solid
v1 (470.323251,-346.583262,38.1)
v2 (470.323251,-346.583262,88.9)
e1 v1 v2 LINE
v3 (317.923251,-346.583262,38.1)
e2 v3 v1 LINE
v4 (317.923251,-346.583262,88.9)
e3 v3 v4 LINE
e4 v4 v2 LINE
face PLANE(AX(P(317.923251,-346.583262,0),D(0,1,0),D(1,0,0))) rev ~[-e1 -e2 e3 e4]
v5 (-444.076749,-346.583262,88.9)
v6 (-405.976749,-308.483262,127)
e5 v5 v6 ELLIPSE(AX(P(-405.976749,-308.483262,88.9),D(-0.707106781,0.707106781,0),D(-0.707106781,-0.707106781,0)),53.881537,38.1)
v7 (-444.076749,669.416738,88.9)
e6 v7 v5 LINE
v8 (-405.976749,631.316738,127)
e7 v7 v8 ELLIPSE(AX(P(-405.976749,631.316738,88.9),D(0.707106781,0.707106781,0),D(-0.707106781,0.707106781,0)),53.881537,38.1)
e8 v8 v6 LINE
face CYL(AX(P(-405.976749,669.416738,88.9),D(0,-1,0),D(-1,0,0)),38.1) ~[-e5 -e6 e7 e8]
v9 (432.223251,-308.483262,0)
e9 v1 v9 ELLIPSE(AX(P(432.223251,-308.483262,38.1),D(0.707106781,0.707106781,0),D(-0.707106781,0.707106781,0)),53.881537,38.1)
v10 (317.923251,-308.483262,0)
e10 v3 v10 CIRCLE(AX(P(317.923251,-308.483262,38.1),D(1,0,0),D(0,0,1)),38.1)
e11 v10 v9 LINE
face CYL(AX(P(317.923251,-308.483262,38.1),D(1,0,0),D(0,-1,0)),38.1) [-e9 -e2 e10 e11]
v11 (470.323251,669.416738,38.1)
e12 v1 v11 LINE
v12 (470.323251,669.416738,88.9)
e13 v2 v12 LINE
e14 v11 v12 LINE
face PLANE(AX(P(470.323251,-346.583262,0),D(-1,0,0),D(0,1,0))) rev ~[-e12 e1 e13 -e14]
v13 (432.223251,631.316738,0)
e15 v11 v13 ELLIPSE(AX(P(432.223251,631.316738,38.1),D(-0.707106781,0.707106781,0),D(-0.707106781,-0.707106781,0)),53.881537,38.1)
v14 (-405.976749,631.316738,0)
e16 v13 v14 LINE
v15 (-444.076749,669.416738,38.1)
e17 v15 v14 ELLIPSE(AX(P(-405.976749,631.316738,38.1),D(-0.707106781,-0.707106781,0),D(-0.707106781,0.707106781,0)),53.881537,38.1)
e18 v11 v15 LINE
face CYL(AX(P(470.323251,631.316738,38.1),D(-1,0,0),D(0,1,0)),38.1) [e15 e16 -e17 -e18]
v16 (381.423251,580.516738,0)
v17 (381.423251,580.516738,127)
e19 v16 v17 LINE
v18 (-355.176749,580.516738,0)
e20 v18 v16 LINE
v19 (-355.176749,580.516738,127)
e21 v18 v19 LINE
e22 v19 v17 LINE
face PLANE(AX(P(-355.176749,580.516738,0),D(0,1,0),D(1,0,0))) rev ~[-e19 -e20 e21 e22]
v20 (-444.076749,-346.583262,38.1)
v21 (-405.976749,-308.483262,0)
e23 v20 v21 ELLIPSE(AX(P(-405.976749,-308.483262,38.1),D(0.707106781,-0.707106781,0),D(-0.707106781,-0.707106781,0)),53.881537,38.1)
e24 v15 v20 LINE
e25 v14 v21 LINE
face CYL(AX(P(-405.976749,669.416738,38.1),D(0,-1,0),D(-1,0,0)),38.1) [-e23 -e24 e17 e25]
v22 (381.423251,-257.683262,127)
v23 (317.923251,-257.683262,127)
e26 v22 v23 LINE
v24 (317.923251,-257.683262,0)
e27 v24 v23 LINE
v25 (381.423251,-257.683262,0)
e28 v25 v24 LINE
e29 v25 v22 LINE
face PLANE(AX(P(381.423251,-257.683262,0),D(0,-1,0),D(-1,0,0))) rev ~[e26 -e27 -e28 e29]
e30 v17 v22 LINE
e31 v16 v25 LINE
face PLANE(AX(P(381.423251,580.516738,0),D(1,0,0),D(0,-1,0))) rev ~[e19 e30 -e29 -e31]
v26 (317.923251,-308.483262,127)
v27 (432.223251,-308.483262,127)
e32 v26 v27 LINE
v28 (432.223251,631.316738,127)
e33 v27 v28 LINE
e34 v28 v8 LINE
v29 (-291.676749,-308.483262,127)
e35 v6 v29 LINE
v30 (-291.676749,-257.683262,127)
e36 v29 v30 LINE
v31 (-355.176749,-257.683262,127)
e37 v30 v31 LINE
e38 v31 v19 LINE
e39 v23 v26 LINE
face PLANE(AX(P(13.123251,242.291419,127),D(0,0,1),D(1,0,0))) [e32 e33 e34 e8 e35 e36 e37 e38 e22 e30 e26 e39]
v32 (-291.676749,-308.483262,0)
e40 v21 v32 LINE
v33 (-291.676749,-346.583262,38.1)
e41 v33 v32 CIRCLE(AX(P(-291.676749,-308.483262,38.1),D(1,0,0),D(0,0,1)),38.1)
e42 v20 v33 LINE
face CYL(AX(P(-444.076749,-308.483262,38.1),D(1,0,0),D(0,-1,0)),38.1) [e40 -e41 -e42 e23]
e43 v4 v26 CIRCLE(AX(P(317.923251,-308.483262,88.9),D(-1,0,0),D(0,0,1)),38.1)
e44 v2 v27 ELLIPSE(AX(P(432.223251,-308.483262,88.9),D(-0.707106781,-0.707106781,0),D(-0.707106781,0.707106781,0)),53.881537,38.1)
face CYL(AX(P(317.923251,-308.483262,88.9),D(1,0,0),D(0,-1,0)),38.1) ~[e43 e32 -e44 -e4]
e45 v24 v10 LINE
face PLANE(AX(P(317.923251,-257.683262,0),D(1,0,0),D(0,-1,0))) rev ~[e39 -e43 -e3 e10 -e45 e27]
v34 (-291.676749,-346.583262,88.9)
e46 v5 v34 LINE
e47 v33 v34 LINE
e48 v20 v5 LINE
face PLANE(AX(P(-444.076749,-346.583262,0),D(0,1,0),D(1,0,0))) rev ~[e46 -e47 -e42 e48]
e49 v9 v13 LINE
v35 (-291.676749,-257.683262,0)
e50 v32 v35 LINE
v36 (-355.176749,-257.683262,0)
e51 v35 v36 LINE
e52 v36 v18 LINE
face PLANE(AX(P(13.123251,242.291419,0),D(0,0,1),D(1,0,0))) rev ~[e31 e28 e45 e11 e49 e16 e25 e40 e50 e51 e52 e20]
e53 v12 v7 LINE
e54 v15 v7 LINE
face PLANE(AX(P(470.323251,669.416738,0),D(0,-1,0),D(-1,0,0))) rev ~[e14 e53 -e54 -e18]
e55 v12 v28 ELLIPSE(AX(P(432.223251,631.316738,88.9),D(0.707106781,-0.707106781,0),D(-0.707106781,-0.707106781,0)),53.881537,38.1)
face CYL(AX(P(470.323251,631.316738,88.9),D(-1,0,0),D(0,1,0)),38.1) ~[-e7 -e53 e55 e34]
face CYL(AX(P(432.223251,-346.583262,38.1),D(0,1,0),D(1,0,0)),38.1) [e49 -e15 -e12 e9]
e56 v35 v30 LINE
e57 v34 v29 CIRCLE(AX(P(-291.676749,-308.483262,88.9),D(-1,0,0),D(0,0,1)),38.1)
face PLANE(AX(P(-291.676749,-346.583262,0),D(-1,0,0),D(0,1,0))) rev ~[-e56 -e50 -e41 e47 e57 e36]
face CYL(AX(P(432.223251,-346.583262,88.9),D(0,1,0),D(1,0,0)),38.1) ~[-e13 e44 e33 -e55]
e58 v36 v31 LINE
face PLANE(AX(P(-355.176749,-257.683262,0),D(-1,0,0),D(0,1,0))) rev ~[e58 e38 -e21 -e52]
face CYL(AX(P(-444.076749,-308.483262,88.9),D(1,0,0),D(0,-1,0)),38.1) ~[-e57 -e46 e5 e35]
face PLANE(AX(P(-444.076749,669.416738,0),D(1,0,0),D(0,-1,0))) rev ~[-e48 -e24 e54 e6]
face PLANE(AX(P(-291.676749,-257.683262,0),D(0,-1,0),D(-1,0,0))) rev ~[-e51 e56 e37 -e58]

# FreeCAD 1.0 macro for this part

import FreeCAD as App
import Part
import Sketcher
from FreeCAD import Vector
Q = App.Units.Quantity


def edges_at(feature, points):
    """Names of the edges that pass closest to the given points."""
    edges = feature.Shape.Edges
    near = lambda p: min(range(len(edges)), key=lambda i: edges[i].distToShape(Part.Vertex(*p))[0])
    return sorted({f"Edge{near(p) + 1}" for p in points})

doc = App.newDocument("Part")
params = doc.addObject("Spreadsheet::Sheet", "Params")
for row, (alias, value) in enumerate([
    ("sketch1_width", "36 in"),
    ("sketch1_width2", "6 in"),
    ("sketch1_width3", "29 in"),
    ("sketch1_height", "40 in"),
    ("sketch1_height2", "33 in"),
    ("pad1_length", "5 in"),
    ("fillet_radius", "1.5 in"),
], start=1):
    params.set(f"A{row}", alias)
    params.set(f"B{row}", "=" + value)
    params.setAlias(f"B{row}", alias)

body = doc.addObject("PartDesign::Body", "Body")

# Sketch on XY plane
sketch1 = body.newObject("Sketcher::SketchObject", "Sketch")
sketch1.AttachmentSupport = (doc.getObject("XY_Plane"), [""])
sketch1.MapMode = "FlatFace"
sketch1.addGeometry(Part.LineSegment(Vector(470.323251, 669.416738, 0), Vector(-444.076749, 669.416738, 0)), False)
sketch1.addGeometry(Part.LineSegment(Vector(-444.076749, 669.416738, 0), Vector(-444.076749, -346.583262, 0)), False)
sketch1.addGeometry(Part.LineSegment(Vector(-444.076749, -346.583262, 0), Vector(-291.676749, -346.583262, 0)), False)
sketch1.addGeometry(Part.LineSegment(Vector(-291.676749, -346.583262, 0), Vector(-291.676749, -257.683262, 0)), False)
sketch1.addGeometry(Part.LineSegment(Vector(-291.676749, -257.683262, 0), Vector(-355.176749, -257.683262, 0)), False)
sketch1.addGeometry(Part.LineSegment(Vector(-355.176749, -257.683262, 0), Vector(-355.176749, 580.516738, 0)), False)
sketch1.addGeometry(Part.LineSegment(Vector(-355.176749, 580.516738, 0), Vector(381.423251, 580.516738, 0)), False)
sketch1.addGeometry(Part.LineSegment(Vector(381.423251, 580.516738, 0), Vector(381.423251, -257.683262, 0)), False)
sketch1.addGeometry(Part.LineSegment(Vector(381.423251, -257.683262, 0), Vector(317.923251, -257.683262, 0)), False)
sketch1.addGeometry(Part.LineSegment(Vector(317.923251, -257.683262, 0), Vector(317.923251, -346.583262, 0)), False)
sketch1.addGeometry(Part.LineSegment(Vector(317.923251, -346.583262, 0), Vector(470.323251, -346.583262, 0)), False)
sketch1.addGeometry(Part.LineSegment(Vector(470.323251, -346.583262, 0), Vector(470.323251, 669.416738, 0)), False)
sketch1.addConstraint(Sketcher.Constraint("Coincident", 0, 2, 1, 1))
sketch1.addConstraint(Sketcher.Constraint("Coincident", 1, 2, 2, 1))
sketch1.addConstraint(Sketcher.Constraint("Coincident", 2, 2, 3, 1))
sketch1.addConstraint(Sketcher.Constraint("Coincident", 3, 2, 4, 1))
sketch1.addConstraint(Sketcher.Constraint("Coincident", 4, 2, 5, 1))
sketch1.addConstraint(Sketcher.Constraint("Coincident", 5, 2, 6, 1))
sketch1.addConstraint(Sketcher.Constraint("Coincident", 6, 2, 7, 1))
sketch1.addConstraint(Sketcher.Constraint("Coincident", 7, 2, 8, 1))
sketch1.addConstraint(Sketcher.Constraint("Coincident", 8, 2, 9, 1))
sketch1.addConstraint(Sketcher.Constraint("Coincident", 9, 2, 10, 1))
sketch1.addConstraint(Sketcher.Constraint("Coincident", 10, 2, 11, 1))
sketch1.addConstraint(Sketcher.Constraint("Coincident", 11, 2, 0, 1))
sketch1.addConstraint(Sketcher.Constraint("Horizontal", 0))
sketch1.addConstraint(Sketcher.Constraint("Vertical", 1))
sketch1.addConstraint(Sketcher.Constraint("Horizontal", 2))
sketch1.addConstraint(Sketcher.Constraint("Vertical", 3))
sketch1.addConstraint(Sketcher.Constraint("Horizontal", 4))
sketch1.addConstraint(Sketcher.Constraint("Vertical", 5))
sketch1.addConstraint(Sketcher.Constraint("Horizontal", 6))
sketch1.addConstraint(Sketcher.Constraint("Vertical", 7))
sketch1.addConstraint(Sketcher.Constraint("Horizontal", 8))
sketch1.addConstraint(Sketcher.Constraint("Vertical", 9))
sketch1.addConstraint(Sketcher.Constraint("Horizontal", 10))
sketch1.addConstraint(Sketcher.Constraint("Vertical", 11))
sketch1.addConstraint(Sketcher.Constraint("Horizontal", 4, 2, 7, 2))
sketch1.addConstraint(Sketcher.Constraint("Horizontal", 2, 2, 9, 2))
sketch1.addConstraint(Sketcher.Constraint("Equal", 4, 8))
sketch1.addConstraint(Sketcher.Constraint("Equal", 2, 10))
sketch1.addConstraint(Sketcher.Constraint("DistanceX", 0, 2, 0, 1, Q("36 in")))
sketch1.addConstraint(Sketcher.Constraint("DistanceX", 2, 1, 2, 2, Q("6 in")))
sketch1.addConstraint(Sketcher.Constraint("DistanceX", 6, 1, 6, 2, Q("29 in")))
sketch1.addConstraint(Sketcher.Constraint("DistanceY", 1, 2, 1, 1, Q("40 in")))
sketch1.addConstraint(Sketcher.Constraint("DistanceY", 5, 1, 5, 2, Q("33 in")))
sketch1.addConstraint(Sketcher.Constraint("DistanceY", 3, 1, 3, 2, Q("3.5 in")))
sketch1.addConstraint(Sketcher.Constraint("DistanceX", 0, 2, -1, 1, 444.076749))
sketch1.addConstraint(Sketcher.Constraint("DistanceY", -1, 1, 0, 2, 669.416738))
sketch1.setExpression("Constraints[28]", "Params.sketch1_width")
sketch1.setExpression("Constraints[29]", "Params.sketch1_width2")
sketch1.setExpression("Constraints[30]", "Params.sketch1_width3")
sketch1.setExpression("Constraints[31]", "Params.sketch1_height")
sketch1.setExpression("Constraints[32]", "Params.sketch1_height2")
pad1 = body.newObject("PartDesign::Pad", "Pad")
pad1.Profile = sketch1
pad1.setExpression("Length", "Params.pad1_length")
doc.recompute()

fillet = body.newObject("PartDesign::Fillet", "Fillet")
fillet.Base = (pad1, edges_at(pad1, [
    (13.123, 669.417, 0),
    (13.123, 669.417, 127),
    (470.323, 161.417, 127),
    (470.323, 161.417, 0),
    (-444.077, 161.417, 0),
    (-444.077, 161.417, 127),
    (-367.877, -346.583, 0),
    (-367.877, -346.583, 127),
    (394.123, -346.583, 127),
    (394.123, -346.583, 0),
]))
fillet.setExpression("Radius", "Params.fillet_radius")

doc.recompute()
